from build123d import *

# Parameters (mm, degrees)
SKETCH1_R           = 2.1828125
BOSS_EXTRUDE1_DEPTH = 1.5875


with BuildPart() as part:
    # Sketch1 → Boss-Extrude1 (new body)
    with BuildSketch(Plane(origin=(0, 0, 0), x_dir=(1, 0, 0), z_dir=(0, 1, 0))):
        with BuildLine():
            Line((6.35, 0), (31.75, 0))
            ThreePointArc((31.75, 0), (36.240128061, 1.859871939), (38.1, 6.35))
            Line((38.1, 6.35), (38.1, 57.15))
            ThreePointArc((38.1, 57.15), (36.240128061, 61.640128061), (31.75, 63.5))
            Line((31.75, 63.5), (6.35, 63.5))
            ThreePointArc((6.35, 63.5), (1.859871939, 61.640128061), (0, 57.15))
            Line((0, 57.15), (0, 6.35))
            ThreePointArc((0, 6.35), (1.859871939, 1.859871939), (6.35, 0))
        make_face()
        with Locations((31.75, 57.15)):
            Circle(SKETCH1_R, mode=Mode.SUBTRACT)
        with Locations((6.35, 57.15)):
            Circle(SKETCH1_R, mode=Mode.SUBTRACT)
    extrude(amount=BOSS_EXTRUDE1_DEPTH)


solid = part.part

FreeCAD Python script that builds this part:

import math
import FreeCAD as App
import Part
import Sketcher
Q = App.Units.Quantity

doc = App.newDocument("Part")
params = doc.addObject("Spreadsheet::Sheet", "Params")
for row, (alias, value) in enumerate([
    ("sketch1_width", "1 in"),
    ("sketch1_height", "2 in"),
    ("sketch1_radius", "0.25 in"),
    ("sketch1_diameter", "0.171875 in"),
    ("pad1_length", "0.0625 in"),
], start=1):
    params.set(f"A{row}", alias)
    params.set(f"B{row}", "=" + value)
    params.setAlias(f"B{row}", alias)

body = doc.addObject("PartDesign::Body", "Body")

sketch1 = body.newObject("Sketcher::SketchObject", "Sketch")
sketch1.AttachmentSupport = (doc.getObject("XZ_Plane"), [""])
sketch1.MapMode = "FlatFace"
sketch1.addGeometry([
    Part.LineSegment(App.Vector(6.3, 0, 0), App.Vector(31.8, 0, 0)),
    Part.ArcOfCircle(Part.Circle(App.Vector(31.8, -6.3, 0), App.Vector(0, 0, 1), 6.3), math.radians(0), math.radians(90)),
    Part.LineSegment(App.Vector(38.1, -6.3, 0), App.Vector(38.1, -57.1, 0)),
    Part.ArcOfCircle(Part.Circle(App.Vector(31.8, -57.2, 0), App.Vector(0, 0, 1), 6.3), math.radians(-90), math.radians(0)),
    Part.LineSegment(App.Vector(31.8, -63.5, 0), App.Vector(6.3, -63.5, 0)),
    Part.ArcOfCircle(Part.Circle(App.Vector(6.3, -57.2, 0), App.Vector(0, 0, 1), 6.3), math.radians(180), math.radians(270)),
    Part.LineSegment(App.Vector(0, -57.1, 0), App.Vector(0, -6.3, 0)),
    Part.ArcOfCircle(Part.Circle(App.Vector(6.3, -6.3, 0), App.Vector(0, 0, 1), 6.3), math.radians(90), math.radians(180)),
    Part.Circle(App.Vector(6.3, -57.1, 0), App.Vector(0, 0, 1), 2.2),
    Part.Circle(App.Vector(31.8, -57.1, 0), App.Vector(0, 0, 1), 2.2),
], False)
sketch1.addConstraint([
    Sketcher.Constraint("Tangent", 0, 2, 1, 2),
    Sketcher.Constraint("Tangent", 1, 1, 2, 1),
    Sketcher.Constraint("Tangent", 2, 2, 3, 2),
    Sketcher.Constraint("Tangent", 3, 1, 4, 1),
    Sketcher.Constraint("Tangent", 4, 2, 5, 2),
    Sketcher.Constraint("Tangent", 5, 1, 6, 1),
    Sketcher.Constraint("Tangent", 6, 2, 7, 2),
    Sketcher.Constraint("Tangent", 7, 1, 0, 1),
    Sketcher.Constraint("Horizontal", 0),
    Sketcher.Constraint("Vertical", 2),
    Sketcher.Constraint("Horizontal", 4),
    Sketcher.Constraint("Vertical", 6),
    Sketcher.Constraint("Coincident", 8, 3, 5, 3),
    Sketcher.Constraint("Coincident", 9, 3, 3, 3),
    Sketcher.Constraint("Equal", 1, 3),
    Sketcher.Constraint("Equal", 3, 5),
    Sketcher.Constraint("Equal", 5, 7),
    Sketcher.Constraint("Equal", 8, 9),
    Sketcher.Constraint("PointOnObject", 0, 2, -1),
    Sketcher.Constraint("PointOnObject", 5, 1, -2),
    Sketcher.Constraint("DistanceX", 0, 1, 0, 2, Q("1 in")),
    Sketcher.Constraint("DistanceY", 2, 2, 2, 1, Q("2 in")),
    Sketcher.Constraint("Radius", 1, Q("0.25 in")),
    Sketcher.Constraint("Diameter", 8, Q("0.171875 in")),
])
sketch1.setExpression("Constraints[20]", "Params.sketch1_width")
sketch1.setExpression("Constraints[21]", "Params.sketch1_height")
sketch1.setExpression("Constraints[22]", "Params.sketch1_radius")
sketch1.setExpression("Constraints[23]", "Params.sketch1_diameter")
pad1 = body.newObject("PartDesign::Pad", "Pad")
pad1.Profile = sketch1
pad1.setExpression("Length", "Params.pad1_length")
pad1.Reversed = True

doc.recompute()
